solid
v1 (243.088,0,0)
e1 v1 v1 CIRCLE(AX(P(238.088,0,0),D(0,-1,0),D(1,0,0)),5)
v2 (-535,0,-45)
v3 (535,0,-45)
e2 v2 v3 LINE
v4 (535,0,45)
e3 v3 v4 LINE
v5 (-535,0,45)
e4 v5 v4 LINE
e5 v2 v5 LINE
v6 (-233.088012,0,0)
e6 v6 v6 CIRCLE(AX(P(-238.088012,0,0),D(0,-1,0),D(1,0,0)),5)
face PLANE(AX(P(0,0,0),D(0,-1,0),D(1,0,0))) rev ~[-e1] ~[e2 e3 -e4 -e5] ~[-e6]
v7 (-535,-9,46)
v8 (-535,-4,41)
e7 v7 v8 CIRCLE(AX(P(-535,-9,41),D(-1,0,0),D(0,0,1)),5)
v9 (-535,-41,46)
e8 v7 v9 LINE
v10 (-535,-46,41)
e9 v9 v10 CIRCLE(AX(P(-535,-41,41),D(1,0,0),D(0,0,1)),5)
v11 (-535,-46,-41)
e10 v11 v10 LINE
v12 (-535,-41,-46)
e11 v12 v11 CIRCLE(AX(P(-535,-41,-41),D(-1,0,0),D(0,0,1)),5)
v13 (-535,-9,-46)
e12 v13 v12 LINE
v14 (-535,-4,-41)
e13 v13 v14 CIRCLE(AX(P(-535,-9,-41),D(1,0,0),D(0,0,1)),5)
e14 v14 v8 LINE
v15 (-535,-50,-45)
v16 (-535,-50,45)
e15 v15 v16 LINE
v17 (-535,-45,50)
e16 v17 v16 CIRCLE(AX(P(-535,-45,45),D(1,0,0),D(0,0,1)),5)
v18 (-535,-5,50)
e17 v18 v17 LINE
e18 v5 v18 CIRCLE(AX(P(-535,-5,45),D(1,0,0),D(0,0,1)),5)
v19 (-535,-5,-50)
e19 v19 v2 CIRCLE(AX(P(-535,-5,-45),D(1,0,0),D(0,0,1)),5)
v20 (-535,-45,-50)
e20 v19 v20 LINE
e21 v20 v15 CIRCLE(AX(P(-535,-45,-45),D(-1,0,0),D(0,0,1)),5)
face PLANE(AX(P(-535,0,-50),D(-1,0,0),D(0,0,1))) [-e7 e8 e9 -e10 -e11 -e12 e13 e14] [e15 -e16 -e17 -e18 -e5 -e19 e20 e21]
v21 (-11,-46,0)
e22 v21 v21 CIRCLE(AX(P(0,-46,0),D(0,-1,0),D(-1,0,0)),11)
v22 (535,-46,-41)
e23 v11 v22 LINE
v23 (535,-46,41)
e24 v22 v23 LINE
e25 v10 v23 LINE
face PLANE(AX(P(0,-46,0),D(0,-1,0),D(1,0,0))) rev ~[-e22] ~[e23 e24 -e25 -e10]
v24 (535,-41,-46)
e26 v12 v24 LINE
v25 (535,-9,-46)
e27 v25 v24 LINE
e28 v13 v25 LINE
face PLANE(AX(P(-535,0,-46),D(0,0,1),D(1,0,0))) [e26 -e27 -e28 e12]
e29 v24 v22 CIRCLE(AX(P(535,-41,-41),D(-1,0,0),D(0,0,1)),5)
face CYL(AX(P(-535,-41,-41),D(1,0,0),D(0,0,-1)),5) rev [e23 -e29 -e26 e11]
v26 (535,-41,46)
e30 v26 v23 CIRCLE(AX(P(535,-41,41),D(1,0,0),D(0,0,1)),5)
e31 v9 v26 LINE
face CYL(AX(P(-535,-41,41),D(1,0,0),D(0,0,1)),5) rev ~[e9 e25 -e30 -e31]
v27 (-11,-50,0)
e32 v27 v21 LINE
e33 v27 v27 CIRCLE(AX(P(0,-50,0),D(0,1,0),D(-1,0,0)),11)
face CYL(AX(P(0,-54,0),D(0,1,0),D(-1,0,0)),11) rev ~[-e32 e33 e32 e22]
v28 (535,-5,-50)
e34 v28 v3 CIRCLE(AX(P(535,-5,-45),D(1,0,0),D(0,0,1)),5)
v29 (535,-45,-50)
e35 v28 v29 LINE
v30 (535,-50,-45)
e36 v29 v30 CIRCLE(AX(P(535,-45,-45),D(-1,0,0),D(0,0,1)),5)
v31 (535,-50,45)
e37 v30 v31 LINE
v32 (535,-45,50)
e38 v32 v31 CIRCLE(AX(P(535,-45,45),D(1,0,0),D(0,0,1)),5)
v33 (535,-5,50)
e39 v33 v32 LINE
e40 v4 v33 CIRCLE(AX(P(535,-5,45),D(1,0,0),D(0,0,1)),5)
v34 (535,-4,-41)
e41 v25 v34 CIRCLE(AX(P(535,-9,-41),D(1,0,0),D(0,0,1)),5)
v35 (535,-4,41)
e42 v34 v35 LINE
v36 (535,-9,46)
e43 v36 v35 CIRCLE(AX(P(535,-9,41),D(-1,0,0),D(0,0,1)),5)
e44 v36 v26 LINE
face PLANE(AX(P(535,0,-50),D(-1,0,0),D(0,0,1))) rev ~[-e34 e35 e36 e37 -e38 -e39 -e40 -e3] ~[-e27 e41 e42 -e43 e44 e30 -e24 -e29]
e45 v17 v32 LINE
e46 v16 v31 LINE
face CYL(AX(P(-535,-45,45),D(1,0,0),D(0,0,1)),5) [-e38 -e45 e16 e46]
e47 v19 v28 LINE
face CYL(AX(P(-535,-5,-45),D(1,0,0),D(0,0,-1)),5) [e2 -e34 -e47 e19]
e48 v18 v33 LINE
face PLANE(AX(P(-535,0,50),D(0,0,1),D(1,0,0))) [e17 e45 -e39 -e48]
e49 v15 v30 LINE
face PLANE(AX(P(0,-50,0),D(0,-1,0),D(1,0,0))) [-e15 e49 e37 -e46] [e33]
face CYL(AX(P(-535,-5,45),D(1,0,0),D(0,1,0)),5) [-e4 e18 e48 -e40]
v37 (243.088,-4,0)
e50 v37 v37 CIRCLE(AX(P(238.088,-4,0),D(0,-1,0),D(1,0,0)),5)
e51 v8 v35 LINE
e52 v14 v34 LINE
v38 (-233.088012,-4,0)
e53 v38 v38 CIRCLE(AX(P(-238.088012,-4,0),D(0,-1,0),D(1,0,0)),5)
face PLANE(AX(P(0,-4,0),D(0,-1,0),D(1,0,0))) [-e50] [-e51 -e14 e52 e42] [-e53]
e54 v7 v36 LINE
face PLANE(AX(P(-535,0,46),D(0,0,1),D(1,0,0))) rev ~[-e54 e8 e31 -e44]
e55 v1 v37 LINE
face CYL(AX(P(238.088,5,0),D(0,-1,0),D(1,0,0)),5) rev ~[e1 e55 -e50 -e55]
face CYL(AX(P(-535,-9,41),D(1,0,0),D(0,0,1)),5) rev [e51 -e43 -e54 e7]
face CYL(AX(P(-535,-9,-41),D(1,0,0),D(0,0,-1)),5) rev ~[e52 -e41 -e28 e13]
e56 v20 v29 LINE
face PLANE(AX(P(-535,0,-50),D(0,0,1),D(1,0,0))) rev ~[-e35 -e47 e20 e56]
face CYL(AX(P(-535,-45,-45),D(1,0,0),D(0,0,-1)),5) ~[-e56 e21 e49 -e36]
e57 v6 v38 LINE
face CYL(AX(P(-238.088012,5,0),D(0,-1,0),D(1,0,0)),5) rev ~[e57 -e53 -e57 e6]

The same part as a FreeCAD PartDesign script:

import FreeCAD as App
import Part
import Sketcher
Q = App.Units.Quantity


def edges_at(feature, points):
    """Names of the edges that pass closest to the given points."""
    edges = feature.Shape.Edges
    near = lambda p: min(range(len(edges)), key=lambda i: edges[i].distToShape(Part.Vertex(*p))[0])
    return sorted({f"Edge{near(p) + 1}" for p in points})


def faces_at(feature, points):
    """Names of the faces that lie closest to the given points."""
    faces = feature.Shape.Faces
    near = lambda p: min(range(len(faces)), key=lambda i: faces[i].distToShape(Part.Vertex(*p))[0])
    return sorted({f"Face{near(p) + 1}" for p in points})

doc = App.newDocument("Part")
body = doc.addObject("PartDesign::Body", "Body")

# Sketch on XZ plane
sketch1 = doc.addObject("Sketcher::SketchObject", "Sketch")
body.addObject(sketch1)
sketch1.AttachmentSupport = (doc.XZ_Plane, [""])
sketch1.MapMode = "FlatFace"
sketch1.addGeometry(Part.LineSegment(App.Vector(-535, 50, 0), App.Vector(-535, -50, 0)), False)
sketch1.addGeometry(Part.LineSegment(App.Vector(-535, -50, 0), App.Vector(535, -50, 0)), False)
sketch1.addGeometry(Part.LineSegment(App.Vector(535, -50, 0), App.Vector(535, 50, 0)), False)
sketch1.addGeometry(Part.LineSegment(App.Vector(535, 50, 0), App.Vector(-535, 50, 0)), False)
sketch1.addConstraint(Sketcher.Constraint("Coincident", 0, 2, 1, 1))
sketch1.addConstraint(Sketcher.Constraint("Coincident", 1, 2, 2, 1))
sketch1.addConstraint(Sketcher.Constraint("Coincident", 2, 2, 3, 1))
sketch1.addConstraint(Sketcher.Constraint("Coincident", 3, 2, 0, 1))
sketch1.addConstraint(Sketcher.Constraint("Vertical", 0))
sketch1.addConstraint(Sketcher.Constraint("Horizontal", 1))
sketch1.addConstraint(Sketcher.Constraint("Vertical", 2))
sketch1.addConstraint(Sketcher.Constraint("Horizontal", 3))
sketch1.addConstraint(Sketcher.Constraint("Symmetric", 0, 2, 2, 2, -1, 1))
sketch1.addConstraint(Sketcher.Constraint("DistanceX", 1, 1, 1, 2, Q("1070 mm")))
sketch1.addConstraint(Sketcher.Constraint("DistanceY", 0, 2, 0, 1, Q("100 mm")))
pad1 = doc.addObject("PartDesign::Pad", "Pad")
body.addObject(pad1)
pad1.Profile = sketch1
pad1.Length = 50
doc.recompute()

thickness = doc.addObject("PartDesign::Thickness", "Thickness")
body.addObject(thickness)
thickness.Base = (pad1, faces_at(pad1, [(-535, -25, 0), (535, -25, 0)]))
thickness.Value = 4
thickness.Reversed = True
thickness.Join = "Arc"
doc.recompute()

fillet = doc.addObject("PartDesign::Fillet", "Fillet")
body.addObject(fillet)
fillet.Base = (thickness, edges_at(thickness, [
    (0, -46, 46),
    (0, -4, 46),
    (0, -46, -46),
    (0, -4, -46),
    (0, -50, -50),
    (0, -50, 50),
    (0, 0, 50),
    (0, 0, -50),
]))
fillet.Radius = 5

# Sketch on XZ plane
sketch2 = doc.addObject("Sketcher::SketchObject", "Sketch001")
body.addObject(sketch2)
sketch2.AttachmentSupport = (doc.XZ_Plane, [""])
sketch2.MapMode = "FlatFace"
sketch2.AttachmentOffset = App.Placement(App.Vector(0, 0, 50), App.Rotation())
sketch2.addGeometry(Part.Circle(App.Vector(0, 0, 0), App.Vector(0, 0, 1), 11), False)
sketch2.addConstraint(Sketcher.Constraint("Coincident", 0, 3, -1, 1))
sketch2.addConstraint(Sketcher.Constraint("Diameter", 0, Q("22 mm")))
doc.recompute()
hole = doc.addObject("PartDesign::Hole", "Hole")
body.addObject(hole)
hole.Profile = sketch2
hole.ThreadType = "None"
hole.Diameter = 22
hole.DepthType = "Dimension"
hole.Depth = 4
hole.DrillPoint = "Angled"
hole.DrillPointAngle = 118

# Sketch on XZ plane
sketch3 = doc.addObject("Sketcher::SketchObject", "Sketch002")
body.addObject(sketch3)
sketch3.AttachmentSupport = (doc.XZ_Plane, [""])
sketch3.MapMode = "FlatFace"
sketch3.addGeometry(Part.Circle(App.Vector(-238, 0, 0), App.Vector(0, 0, 1), 5), False)
sketch3.addGeometry(Part.Circle(App.Vector(238, 0, 0), App.Vector(0, 0, 1), 5), False)
sketch3.addConstraint(Sketcher.Constraint("Equal", 0, 1))
sketch3.addConstraint(Sketcher.Constraint("PointOnObject", 0, 3, -1))
sketch3.addConstraint(Sketcher.Constraint("PointOnObject", 1, 3, -1))
sketch3.addConstraint(Sketcher.Constraint("Diameter", 0, Q("10 mm")))
sketch3.addConstraint(Sketcher.Constraint("DistanceX", -1, 1, 1, 3, Q("238.088 mm")))
sketch3.addConstraint(Sketcher.Constraint("DistanceX", 0, 3, -1, 1, Q("238.088012 mm")))
doc.recompute()
hole2 = doc.addObject("PartDesign::Hole", "Hole001")
body.addObject(hole2)
hole2.Profile = sketch3
hole2.ThreadType = "None"
hole2.Diameter = 10
hole2.DepthType = "Dimension"
hole2.Depth = 5
hole2.DrillPoint = "Angled"
hole2.DrillPointAngle = 118
hole2.Reversed = True

doc.recompute()
